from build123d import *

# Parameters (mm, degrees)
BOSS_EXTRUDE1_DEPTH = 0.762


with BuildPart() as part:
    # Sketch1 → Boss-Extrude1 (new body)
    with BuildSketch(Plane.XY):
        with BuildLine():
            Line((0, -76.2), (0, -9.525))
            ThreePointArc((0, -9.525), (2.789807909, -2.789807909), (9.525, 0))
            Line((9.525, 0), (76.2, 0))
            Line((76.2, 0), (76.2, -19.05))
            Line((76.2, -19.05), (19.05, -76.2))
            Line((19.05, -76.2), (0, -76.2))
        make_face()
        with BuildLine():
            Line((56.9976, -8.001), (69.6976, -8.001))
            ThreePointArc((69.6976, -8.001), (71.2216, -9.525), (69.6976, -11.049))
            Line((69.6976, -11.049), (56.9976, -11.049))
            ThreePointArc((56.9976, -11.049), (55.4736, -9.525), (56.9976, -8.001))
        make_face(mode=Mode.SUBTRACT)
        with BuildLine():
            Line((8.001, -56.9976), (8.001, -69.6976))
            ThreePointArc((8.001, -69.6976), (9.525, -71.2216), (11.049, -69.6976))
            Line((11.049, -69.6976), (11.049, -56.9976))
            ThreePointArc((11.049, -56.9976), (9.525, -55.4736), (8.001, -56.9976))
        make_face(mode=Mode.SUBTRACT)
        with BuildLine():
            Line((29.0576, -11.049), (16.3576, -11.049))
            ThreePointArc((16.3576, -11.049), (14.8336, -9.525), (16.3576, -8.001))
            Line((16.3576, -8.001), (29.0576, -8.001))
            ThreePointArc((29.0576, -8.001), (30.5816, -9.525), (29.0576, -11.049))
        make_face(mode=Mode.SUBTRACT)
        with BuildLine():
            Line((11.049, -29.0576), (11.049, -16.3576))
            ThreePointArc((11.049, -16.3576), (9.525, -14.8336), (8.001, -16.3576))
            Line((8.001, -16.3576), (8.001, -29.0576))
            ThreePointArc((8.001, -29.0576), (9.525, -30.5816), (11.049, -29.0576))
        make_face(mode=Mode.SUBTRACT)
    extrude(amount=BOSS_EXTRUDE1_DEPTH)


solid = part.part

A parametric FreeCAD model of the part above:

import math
import FreeCAD as App
import Part
import Sketcher
from FreeCAD import Vector
Q = App.Units.Quantity

doc = App.newDocument("Part")
body = doc.addObject("PartDesign::Body", "Body")

# Sketch on XY plane
sketch1 = doc.addObject("Sketcher::SketchObject", "Sketch")
body.addObject(sketch1)
sketch1.AttachmentSupport = (doc.XY_Plane, [""])
sketch1.MapMode = "FlatFace"
sketch1.addGeometry(Part.LineSegment(Vector(0, -9.5, 0), Vector(0, -76.2, 0)), False)
sketch1.addGeometry(Part.LineSegment(Vector(0, -76.2, 0), Vector(19.1, -76.2, 0)), False)
sketch1.addGeometry(Part.LineSegment(Vector(19.1, -76.2, 0), Vector(76.2, -19.1, 0)), False)
sketch1.addGeometry(Part.LineSegment(Vector(76.2, -19.1, 0), Vector(76.2, 0, 0)), False)
sketch1.addGeometry(Part.LineSegment(Vector(76.2, 0, 0), Vector(9.5, 0, 0)), False)
sketch1.addGeometry(Part.ArcOfCircle(Part.Circle(Vector(9.5, -9.5, 0), Vector(0, 0, 1), 9.5), math.radians(90), math.radians(180)), False)
sketch1.addGeometry(Part.ArcOfCircle(Part.Circle(Vector(9.5, -57, 0), Vector(0, 0, 1), 1.5), math.radians(0), math.radians(180)), False)
sketch1.addGeometry(Part.LineSegment(Vector(11, -57, 0), Vector(11, -69.7, 0)), False)
sketch1.addGeometry(Part.ArcOfCircle(Part.Circle(Vector(9.5, -69.7, 0), Vector(0, 0, 1), 1.5), math.radians(180), math.radians(360)), False)
sketch1.addGeometry(Part.LineSegment(Vector(8, -69.7, 0), Vector(8, -57, 0)), False)
sketch1.addGeometry(Part.LineSegment(Vector(57, -8, 0), Vector(69.7, -8, 0)), False)
sketch1.addGeometry(Part.ArcOfCircle(Part.Circle(Vector(69.7, -9.5, 0), Vector(0, 0, 1), 1.5), math.radians(-90), math.radians(90)), False)
sketch1.addGeometry(Part.LineSegment(Vector(69.7, -11, 0), Vector(57, -11, 0)), False)
sketch1.addGeometry(Part.ArcOfCircle(Part.Circle(Vector(57, -9.5, 0), Vector(0, 0, 1), 1.5), math.radians(90), math.radians(270)), False)
sketch1.addGeometry(Part.ArcOfCircle(Part.Circle(Vector(9.5, -29.1, 0), Vector(0, 0, 1), 1.5), math.radians(180), math.radians(360)), False)
sketch1.addGeometry(Part.LineSegment(Vector(8, -29.1, 0), Vector(8, -16.4, 0)), False)
sketch1.addGeometry(Part.ArcOfCircle(Part.Circle(Vector(9.5, -16.4, 0), Vector(0, 0, 1), 1.5), math.radians(0), math.radians(180)), False)
sketch1.addGeometry(Part.LineSegment(Vector(11, -16.4, 0), Vector(11, -29.1, 0)), False)
sketch1.addGeometry(Part.LineSegment(Vector(29.1, -11, 0), Vector(16.4, -11, 0)), False)
sketch1.addGeometry(Part.ArcOfCircle(Part.Circle(Vector(16.4, -9.5, 0), Vector(0, 0, 1), 1.5), math.radians(90), math.radians(270)), False)
sketch1.addGeometry(Part.LineSegment(Vector(16.4, -8, 0), Vector(29.1, -8, 0)), False)
sketch1.addGeometry(Part.ArcOfCircle(Part.Circle(Vector(29.1, -9.5, 0), Vector(0, 0, 1), 1.5), math.radians(-90), math.radians(90)), False)
sketch1.addConstraint(Sketcher.Constraint("Coincident", 0, 2, 1, 1))
sketch1.addConstraint(Sketcher.Constraint("Coincident", 1, 2, 2, 1))
sketch1.addConstraint(Sketcher.Constraint("Coincident", 2, 2, 3, 1))
sketch1.addConstraint(Sketcher.Constraint("Coincident", 3, 2, 4, 1))
sketch1.addConstraint(Sketcher.Constraint("Tangent", 4, 2, 5, 1))
sketch1.addConstraint(Sketcher.Constraint("Tangent", 5, 2, 0, 1))
sketch1.addConstraint(Sketcher.Constraint("Tangent", 6, 1, 7, 1))
sketch1.addConstraint(Sketcher.Constraint("Tangent", 7, 2, 8, 2))
sketch1.addConstraint(Sketcher.Constraint("Tangent", 8, 1, 9, 1))
sketch1.addConstraint(Sketcher.Constraint("Tangent", 9, 2, 6, 2))
sketch1.addConstraint(Sketcher.Constraint("Tangent", 10, 2, 11, 2))
sketch1.addConstraint(Sketcher.Constraint("Tangent", 11, 1, 12, 1))
sketch1.addConstraint(Sketcher.Constraint("Tangent", 12, 2, 13, 2))
sketch1.addConstraint(Sketcher.Constraint("Tangent", 13, 1, 10, 1))
sketch1.addConstraint(Sketcher.Constraint("Tangent", 14, 1, 15, 1))
sketch1.addConstraint(Sketcher.Constraint("Tangent", 15, 2, 16, 2))
sketch1.addConstraint(Sketcher.Constraint("Tangent", 16, 1, 17, 1))
sketch1.addConstraint(Sketcher.Constraint("Tangent", 17, 2, 14, 2))
sketch1.addConstraint(Sketcher.Constraint("Tangent", 18, 2, 19, 2))
sketch1.addConstraint(Sketcher.Constraint("Tangent", 19, 1, 20, 1))
sketch1.addConstraint(Sketcher.Constraint("Tangent", 20, 2, 21, 2))
sketch1.addConstraint(Sketcher.Constraint("Tangent", 21, 1, 18, 1))
sketch1.addConstraint(Sketcher.Constraint("Vertical", 0))
sketch1.addConstraint(Sketcher.Constraint("Horizontal", 1))
sketch1.addConstraint(Sketcher.Constraint("Vertical", 3))
sketch1.addConstraint(Sketcher.Constraint("Horizontal", 4))
sketch1.addConstraint(Sketcher.Constraint("Vertical", 7))
sketch1.addConstraint(Sketcher.Constraint("Vertical", 9))
sketch1.addConstraint(Sketcher.Constraint("Horizontal", 10))
sketch1.addConstraint(Sketcher.Constraint("Horizontal", 12))
sketch1.addConstraint(Sketcher.Constraint("Vertical", 15))
sketch1.addConstraint(Sketcher.Constraint("Vertical", 17))
sketch1.addConstraint(Sketcher.Constraint("Horizontal", 18))
sketch1.addConstraint(Sketcher.Constraint("Horizontal", 20))
sketch1.addConstraint(Sketcher.Constraint("Equal", 8, 11))
sketch1.addConstraint(Sketcher.Constraint("Equal", 13, 14))
sketch1.addConstraint(Sketcher.Constraint("Equal", 16, 19))
sketch1.addConstraint(Sketcher.Constraint("PointOnObject", 0, 2, -2))
sketch1.addConstraint(Sketcher.Constraint("PointOnObject", 3, 2, -1))
sketch1.addConstraint(Sketcher.Constraint("Horizontal", 5, 3, 11, 3))
sketch1.addConstraint(Sketcher.Constraint("Horizontal", 13, 3, 19, 3))
sketch1.addConstraint(Sketcher.Constraint("Vertical", 5, 3, 6, 3))
sketch1.addConstraint(Sketcher.Constraint("Vertical", 8, 3, 14, 3))
sketch1.addConstraint(Sketcher.Constraint("Equal", 12, 18))
sketch1.addConstraint(Sketcher.Constraint("Equal", 4, 0))
sketch1.addConstraint(Sketcher.Constraint("Equal", 1, 3))
sketch1.addConstraint(Sketcher.Constraint("Equal", 20, 7))
sketch1.addConstraint(Sketcher.Constraint("Equal", 9, 15))
sketch1.addConstraint(Sketcher.Constraint("Radius", 6, Q("0.06 in")))
sketch1.addConstraint(Sketcher.Constraint("DistanceX", 10, 1, 10, 2, Q("0.5 in")))
sketch1.addConstraint(Sketcher.Constraint("DistanceY", 0, 2, -1, 1, Q("3 in")))
sketch1.addConstraint(Sketcher.Constraint("Radius", 5, Q("0.375 in")))
sketch1.addConstraint(Sketcher.Constraint("DistanceX", 1, 1, 1, 2, Q("0.75 in")))
sketch1.addConstraint(Sketcher.Constraint("DistanceY", 6, 3, 14, 3, Q("1.1 in")))
sketch1.addConstraint(Sketcher.Constraint("DistanceX", 19, 3, 13, 3, Q("1.6 in")))
sketch1.addConstraint(Sketcher.Constraint("DistanceY", 6, 3, -1, 1, Q("2.244 in")))
sketch1.addConstraint(Sketcher.Constraint("DistanceX", -1, 1, 11, 3, Q("2.744 in")))
pad1 = doc.addObject("PartDesign::Pad", "Pad")
body.addObject(pad1)
pad1.Profile = sketch1
pad1.Length = Q("0.03 in")

doc.recompute()
